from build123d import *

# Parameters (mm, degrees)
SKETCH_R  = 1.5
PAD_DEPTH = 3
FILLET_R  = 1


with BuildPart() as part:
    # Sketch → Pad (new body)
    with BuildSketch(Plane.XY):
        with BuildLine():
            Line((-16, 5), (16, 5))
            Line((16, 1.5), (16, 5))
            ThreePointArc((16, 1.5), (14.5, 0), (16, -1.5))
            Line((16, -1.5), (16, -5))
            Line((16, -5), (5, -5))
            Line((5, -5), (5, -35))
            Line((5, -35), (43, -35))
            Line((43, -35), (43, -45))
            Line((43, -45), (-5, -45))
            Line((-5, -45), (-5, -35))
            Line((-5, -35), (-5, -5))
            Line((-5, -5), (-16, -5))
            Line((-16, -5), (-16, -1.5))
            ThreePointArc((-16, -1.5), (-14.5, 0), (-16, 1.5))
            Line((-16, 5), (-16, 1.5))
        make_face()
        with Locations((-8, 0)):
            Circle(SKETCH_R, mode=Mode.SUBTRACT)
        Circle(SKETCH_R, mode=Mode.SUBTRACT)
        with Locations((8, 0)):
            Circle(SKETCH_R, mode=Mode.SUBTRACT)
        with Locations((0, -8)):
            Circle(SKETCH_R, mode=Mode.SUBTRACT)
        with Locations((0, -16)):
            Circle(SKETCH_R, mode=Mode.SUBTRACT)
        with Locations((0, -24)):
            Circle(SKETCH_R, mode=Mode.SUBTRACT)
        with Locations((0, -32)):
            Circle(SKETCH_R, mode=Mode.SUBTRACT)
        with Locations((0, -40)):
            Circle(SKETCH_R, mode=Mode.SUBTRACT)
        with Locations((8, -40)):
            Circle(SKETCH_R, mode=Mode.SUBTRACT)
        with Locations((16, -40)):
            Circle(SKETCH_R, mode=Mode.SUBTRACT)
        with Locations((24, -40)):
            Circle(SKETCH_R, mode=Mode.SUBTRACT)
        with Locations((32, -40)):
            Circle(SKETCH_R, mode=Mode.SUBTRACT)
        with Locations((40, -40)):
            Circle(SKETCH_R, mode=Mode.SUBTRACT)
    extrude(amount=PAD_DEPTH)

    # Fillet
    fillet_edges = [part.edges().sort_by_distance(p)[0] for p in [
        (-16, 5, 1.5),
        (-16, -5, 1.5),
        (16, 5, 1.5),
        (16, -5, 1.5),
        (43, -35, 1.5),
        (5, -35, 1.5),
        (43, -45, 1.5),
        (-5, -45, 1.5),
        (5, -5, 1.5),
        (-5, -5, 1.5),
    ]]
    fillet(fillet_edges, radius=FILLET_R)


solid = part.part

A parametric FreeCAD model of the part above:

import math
import FreeCAD as App
import Part
import Sketcher
from FreeCAD import Vector
Q = App.Units.Quantity


def edges_at(feature, points):
    """Names of the edges that pass closest to the given points."""
    edges = feature.Shape.Edges
    near = lambda p: min(range(len(edges)), key=lambda i: edges[i].distToShape(Part.Vertex(*p))[0])
    return sorted({f"Edge{near(p) + 1}" for p in points})

doc = App.newDocument("Part")
body = doc.addObject("PartDesign::Body", "Body")

# Sketch on XY plane
sketch1 = doc.addObject("Sketcher::SketchObject", "Sketch")
body.addObject(sketch1)
sketch1.AttachmentSupport = (doc.XY_Plane, [""])
sketch1.MapMode = "FlatFace"
sketch1.addGeometry(Part.LineSegment(Vector(16, 5, 0), Vector(-16, 5, 0)), False)
sketch1.addGeometry(Part.LineSegment(Vector(-16, 5, 0), Vector(-16, 1.5, 0)), False)
sketch1.addGeometry(Part.ArcOfCircle(Part.Circle(Vector(-16, 0, 0), Vector(0, 0, 1), 1.5), math.radians(-90), math.radians(90)), False)
sketch1.addGeometry(Part.LineSegment(Vector(-16, -1.5, 0), Vector(-16, -5, 0)), False)
sketch1.addGeometry(Part.LineSegment(Vector(-16, -5, 0), Vector(-5, -5, 0)), False)
sketch1.addGeometry(Part.LineSegment(Vector(-5, -5, 0), Vector(-5, -45, 0)), False)
sketch1.addGeometry(Part.LineSegment(Vector(-5, -45, 0), Vector(43, -45, 0)), False)
sketch1.addGeometry(Part.LineSegment(Vector(43, -45, 0), Vector(43, -35, 0)), False)
sketch1.addGeometry(Part.LineSegment(Vector(43, -35, 0), Vector(5, -35, 0)), False)
sketch1.addGeometry(Part.LineSegment(Vector(5, -35, 0), Vector(5, -5, 0)), False)
sketch1.addGeometry(Part.LineSegment(Vector(5, -5, 0), Vector(16, -5, 0)), False)
sketch1.addGeometry(Part.LineSegment(Vector(16, -5, 0), Vector(16, -1.5, 0)), False)
sketch1.addGeometry(Part.ArcOfCircle(Part.Circle(Vector(16, 0, 0), Vector(0, 0, 1), 1.5), math.radians(90), math.radians(270)), False)
sketch1.addGeometry(Part.LineSegment(Vector(16, 1.5, 0), Vector(16, 5, 0)), False)
sketch1.addGeometry(Part.Circle(Vector(40, -40, 0), Vector(0, 0, 1), 1.5), False)
sketch1.addGeometry(Part.Circle(Vector(32, -40, 0), Vector(0, 0, 1), 1.5), False)
sketch1.addGeometry(Part.Circle(Vector(24, -40, 0), Vector(0, 0, 1), 1.5), False)
sketch1.addGeometry(Part.Circle(Vector(16, -40, 0), Vector(0, 0, 1), 1.5), False)
sketch1.addGeometry(Part.Circle(Vector(8, -40, 0), Vector(0, 0, 1), 1.5), False)
sketch1.addGeometry(Part.Circle(Vector(0, -40, 0), Vector(0, 0, 1), 1.5), False)
sketch1.addGeometry(Part.Circle(Vector(0, -32, 0), Vector(0, 0, 1), 1.5), False)
sketch1.addGeometry(Part.Circle(Vector(0, -24, 0), Vector(0, 0, 1), 1.5), False)
sketch1.addGeometry(Part.Circle(Vector(0, -16, 0), Vector(0, 0, 1), 1.5), False)
sketch1.addGeometry(Part.Circle(Vector(8, 0, 0), Vector(0, 0, 1), 1.5), False)
sketch1.addGeometry(Part.Circle(Vector(0, -8, 0), Vector(0, 0, 1), 1.5), False)
sketch1.addGeometry(Part.Circle(Vector(0, 0, 0), Vector(0, 0, 1), 1.5), False)
sketch1.addGeometry(Part.Circle(Vector(-8, 0, 0), Vector(0, 0, 1), 1.5), False)
sketch1.addConstraint(Sketcher.Constraint("Coincident", 0, 2, 1, 1))
sketch1.addConstraint(Sketcher.Constraint("Coincident", 1, 2, 2, 2))
sketch1.addConstraint(Sketcher.Constraint("Coincident", 2, 1, 3, 1))
sketch1.addConstraint(Sketcher.Constraint("Coincident", 3, 2, 4, 1))
sketch1.addConstraint(Sketcher.Constraint("Coincident", 4, 2, 5, 1))
sketch1.addConstraint(Sketcher.Constraint("Coincident", 5, 2, 6, 1))
sketch1.addConstraint(Sketcher.Constraint("Coincident", 6, 2, 7, 1))
sketch1.addConstraint(Sketcher.Constraint("Coincident", 7, 2, 8, 1))
sketch1.addConstraint(Sketcher.Constraint("Coincident", 8, 2, 9, 1))
sketch1.addConstraint(Sketcher.Constraint("Coincident", 9, 2, 10, 1))
sketch1.addConstraint(Sketcher.Constraint("Coincident", 10, 2, 11, 1))
sketch1.addConstraint(Sketcher.Constraint("Coincident", 11, 2, 12, 2))
sketch1.addConstraint(Sketcher.Constraint("Coincident", 12, 1, 13, 1))
sketch1.addConstraint(Sketcher.Constraint("Coincident", 13, 2, 0, 1))
sketch1.addConstraint(Sketcher.Constraint("Horizontal", 0))
sketch1.addConstraint(Sketcher.Constraint("Vertical", 1))
sketch1.addConstraint(Sketcher.Constraint("Vertical", 3))
sketch1.addConstraint(Sketcher.Constraint("Horizontal", 4))
sketch1.addConstraint(Sketcher.Constraint("Vertical", 5))
sketch1.addConstraint(Sketcher.Constraint("Horizontal", 6))
sketch1.addConstraint(Sketcher.Constraint("Vertical", 7))
sketch1.addConstraint(Sketcher.Constraint("Horizontal", 8))
sketch1.addConstraint(Sketcher.Constraint("Vertical", 9))
sketch1.addConstraint(Sketcher.Constraint("Horizontal", 10))
sketch1.addConstraint(Sketcher.Constraint("Vertical", 11))
sketch1.addConstraint(Sketcher.Constraint("Vertical", 13))
sketch1.addConstraint(Sketcher.Constraint("Coincident", 25, 3, -1, 1))
sketch1.addConstraint(Sketcher.Constraint("Equal", 2, 12))
sketch1.addConstraint(Sketcher.Constraint("Equal", 12, 14))
sketch1.addConstraint(Sketcher.Constraint("Equal", 14, 15))
sketch1.addConstraint(Sketcher.Constraint("Equal", 15, 16))
sketch1.addConstraint(Sketcher.Constraint("Equal", 16, 17))
sketch1.addConstraint(Sketcher.Constraint("Equal", 17, 18))
sketch1.addConstraint(Sketcher.Constraint("Equal", 18, 19))
sketch1.addConstraint(Sketcher.Constraint("Equal", 19, 20))
sketch1.addConstraint(Sketcher.Constraint("Equal", 20, 21))
sketch1.addConstraint(Sketcher.Constraint("Equal", 21, 22))
sketch1.addConstraint(Sketcher.Constraint("Equal", 22, 23))
sketch1.addConstraint(Sketcher.Constraint("Equal", 23, 24))
sketch1.addConstraint(Sketcher.Constraint("Equal", 24, 25))
sketch1.addConstraint(Sketcher.Constraint("Equal", 25, 26))
sketch1.addConstraint(Sketcher.Constraint("Symmetric", 2, 3, 12, 3, -1, 1))
sketch1.addConstraint(Sketcher.Constraint("Symmetric", 23, 3, 26, 3, -1, 1))
sketch1.addConstraint(Sketcher.Constraint("Symmetric", 0, 2, 10, 2, -1, 1))
sketch1.addConstraint(Sketcher.Constraint("Symmetric", 3, 2, 13, 2, -1, 1))
sketch1.addConstraint(Sketcher.Constraint("Symmetric", 2, 1, 11, 2, -2))
sketch1.addConstraint(Sketcher.Constraint("PointOnObject", 19, 3, -2))
sketch1.addConstraint(Sketcher.Constraint("PointOnObject", 20, 3, -2))
sketch1.addConstraint(Sketcher.Constraint("PointOnObject", 21, 3, -2))
sketch1.addConstraint(Sketcher.Constraint("PointOnObject", 22, 3, -2))
sketch1.addConstraint(Sketcher.Constraint("PointOnObject", 23, 3, -1))
sketch1.addConstraint(Sketcher.Constraint("PointOnObject", 24, 3, -2))
sketch1.addConstraint(Sketcher.Constraint("Horizontal", 14, 3, 15, 3))
sketch1.addConstraint(Sketcher.Constraint("Horizontal", 15, 3, 16, 3))
sketch1.addConstraint(Sketcher.Constraint("Horizontal", 16, 3, 17, 3))
sketch1.addConstraint(Sketcher.Constraint("Horizontal", 17, 3, 18, 3))
sketch1.addConstraint(Sketcher.Constraint("Horizontal", 18, 3, 19, 3))
sketch1.addConstraint(Sketcher.Constraint("Vertical", 12, 3, 17, 3))
sketch1.addConstraint(Sketcher.Constraint("Vertical", 18, 3, 23, 3))
sketch1.addConstraint(Sketcher.Constraint("Vertical", 2, 3, 0, 2))
sketch1.addConstraint(Sketcher.Constraint("Equal", 4, 10))
sketch1.addConstraint(Sketcher.Constraint("Diameter", 14, Q("3 mm")))
sketch1.addConstraint(Sketcher.Constraint("DistanceX", 0, 2, 0, 1, Q("32 mm")))
sketch1.addConstraint(Sketcher.Constraint("DistanceX", 4, 1, 4, 2, Q("11 mm")))
sketch1.addConstraint(Sketcher.Constraint("DistanceX", 6, 1, 6, 2, Q("48 mm")))
sketch1.addConstraint(Sketcher.Constraint("DistanceY", 5, 2, 5, 1, Q("40 mm")))
sketch1.addConstraint(Sketcher.Constraint("DistanceY", 7, 1, 7, 2, Q("10 mm")))
sketch1.addConstraint(Sketcher.Constraint("DistanceY", 1, 2, 1, 1, Q("3.5 mm")))
sketch1.addConstraint(Sketcher.Constraint("DistanceX", -1, 1, 14, 3, Q("40 mm")))
sketch1.addConstraint(Sketcher.Constraint("DistanceY", 14, 3, -1, 1, Q("40 mm")))
sketch1.addConstraint(Sketcher.Constraint("DistanceX", -1, 1, 15, 3, Q("32 mm")))
sketch1.addConstraint(Sketcher.Constraint("DistanceX", -1, 1, 16, 3, Q("24 mm")))
sketch1.addConstraint(Sketcher.Constraint("DistanceX", -1, 1, 18, 3, Q("8 mm")))
sketch1.addConstraint(Sketcher.Constraint("DistanceY", 20, 3, -1, 1, Q("32 mm")))
sketch1.addConstraint(Sketcher.Constraint("DistanceY", 21, 3, -1, 1, Q("24 mm")))
sketch1.addConstraint(Sketcher.Constraint("DistanceY", 22, 3, -1, 1, Q("16 mm")))
sketch1.addConstraint(Sketcher.Constraint("DistanceY", 24, 3, -1, 1, Q("8 mm")))
pad1 = doc.addObject("PartDesign::Pad", "Pad")
body.addObject(pad1)
pad1.Profile = sketch1
pad1.Length = 3
doc.recompute()

fillet = doc.addObject("PartDesign::Fillet", "Fillet")
body.addObject(fillet)
fillet.Base = (pad1, edges_at(pad1, [
    (-16, 5, 1.5),
    (-16, -5, 1.5),
    (16, 5, 1.5),
    (16, -5, 1.5),
    (43, -35, 1.5),
    (5, -35, 1.5),
    (43, -45, 1.5),
    (-5, -45, 1.5),
    (5, -5, 1.5),
    (-5, -5, 1.5),
]))
fillet.Radius = 1

doc.recompute()
